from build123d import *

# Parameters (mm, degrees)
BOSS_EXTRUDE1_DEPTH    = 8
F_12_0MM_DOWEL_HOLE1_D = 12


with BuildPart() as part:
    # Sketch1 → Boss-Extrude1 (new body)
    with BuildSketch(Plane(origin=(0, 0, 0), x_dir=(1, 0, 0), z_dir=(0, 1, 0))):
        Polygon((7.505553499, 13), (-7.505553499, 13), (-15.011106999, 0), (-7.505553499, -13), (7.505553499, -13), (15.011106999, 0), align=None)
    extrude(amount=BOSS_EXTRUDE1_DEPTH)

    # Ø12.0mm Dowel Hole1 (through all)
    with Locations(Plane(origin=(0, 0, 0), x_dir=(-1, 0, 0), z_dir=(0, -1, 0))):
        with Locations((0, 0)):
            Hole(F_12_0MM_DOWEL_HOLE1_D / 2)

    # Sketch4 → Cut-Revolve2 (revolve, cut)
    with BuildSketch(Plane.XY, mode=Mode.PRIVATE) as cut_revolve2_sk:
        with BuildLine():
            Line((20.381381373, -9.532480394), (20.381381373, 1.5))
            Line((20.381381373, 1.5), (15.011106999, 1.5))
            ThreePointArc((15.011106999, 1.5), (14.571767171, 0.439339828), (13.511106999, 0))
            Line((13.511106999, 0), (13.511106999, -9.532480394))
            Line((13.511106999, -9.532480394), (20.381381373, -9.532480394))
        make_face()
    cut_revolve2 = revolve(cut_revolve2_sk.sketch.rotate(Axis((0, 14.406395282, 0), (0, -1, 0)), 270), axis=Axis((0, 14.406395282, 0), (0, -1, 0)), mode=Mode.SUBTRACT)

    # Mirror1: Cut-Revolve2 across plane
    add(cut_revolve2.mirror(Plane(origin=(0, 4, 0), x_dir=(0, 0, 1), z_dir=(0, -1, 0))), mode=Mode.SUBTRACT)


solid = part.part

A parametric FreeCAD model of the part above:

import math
import FreeCAD as App
import Part
import Sketcher
Q = App.Units.Quantity


def add_polygon(sketch, points):
    """Adds a closed chain of lines whose ends are joined by coincident constraints."""
    first, n = sketch.GeometryCount, len(points)
    for a, b in zip(points, points[1:] + points[:1]):
        sketch.addGeometry(Part.LineSegment(App.Vector(*a, 0), App.Vector(*b, 0)), False)
    for i in range(n):
        sketch.addConstraint(Sketcher.Constraint("Coincident", first + i, 2, first + (i + 1) % n, 1))

doc = App.newDocument("Part")
params = doc.addObject("Spreadsheet::Sheet", "Params")
for row, (alias, value) in enumerate([
    ("pad1_length", "8 mm"),
    ("sketch2_diameter", "12 mm"),
    ("hole_diameter", "12 mm"),
    ("sketch3_radius", "1.5 mm"),
    ("groove_angle", "360 deg"),
], start=1):
    params.set(f"A{row}", alias)
    params.set(f"B{row}", "=" + value)
    params.setAlias(f"B{row}", alias)

body = doc.addObject("PartDesign::Body", "Body")

# Sketch on XZ plane
sketch1 = body.newObject("Sketcher::SketchObject", "Sketch")
sketch1.AttachmentSupport = (doc.getObject("XZ_Plane"), [""])
sketch1.MapMode = "FlatFace"
add_polygon(sketch1, [(8, -13), (-8, -13), (-15, 0), (-8, 13), (8, 13), (15, 0)])  # lines 0-5
sketch1.addConstraint([
    Sketcher.Constraint("Horizontal", 0),
    Sketcher.Constraint("Horizontal", 3),
    Sketcher.Constraint("Symmetric", 0, 2, 3, 2, -1, 1),
    Sketcher.Constraint("Symmetric", 1, 2, 4, 2, -1, 1),
    Sketcher.Constraint("PointOnObject", 1, 2, -1),
    Sketcher.Constraint("Parallel", 2, 5),
    Sketcher.Constraint("Vertical", 0, 2, 2, 2),
    Sketcher.Constraint("Angle", 1, Q("120 deg")),
    Sketcher.Constraint("DistanceY", 0, 2, -1, 1, Q("13 mm")),
    Sketcher.Constraint("DistanceX", 0, 2, 0, 1, Q("15.011107 mm")),
])
pad1 = body.newObject("PartDesign::Pad", "Pad")
pad1.Profile = sketch1
pad1.setExpression("Length", "Params.pad1_length")
pad1.Reversed = True

# Sketch on XZ plane
sketch2 = body.newObject("Sketcher::SketchObject", "Sketch001")
sketch2.AttachmentSupport = (doc.getObject("XZ_Plane"), [""])
sketch2.MapMode = "FlatFace"
sketch2.addGeometry(Part.Circle(App.Vector(0, 0, 0), App.Vector(0, 0, 1), 6), False)
sketch2.addConstraint([
    Sketcher.Constraint("Coincident", 0, 3, -1, 1),
    Sketcher.Constraint("Diameter", 0, Q("12 mm")),
])
sketch2.setExpression("Constraints[1]", "Params.sketch2_diameter")
doc.recompute()
hole = body.newObject("PartDesign::Hole", "Hole")
hole.Profile = sketch2
hole.ThreadType = "None"
hole.setExpression("Diameter", "Params.hole_diameter")
hole.DepthType = "ThroughAll"

# Sketch on XY plane
sketch3 = body.newObject("Sketcher::SketchObject", "Sketch002")
sketch3.AttachmentSupport = (doc.getObject("XY_Plane"), [""])
sketch3.MapMode = "FlatFace"
sketch3.addGeometry([
    Part.LineSegment(App.Vector(20.4, -9.5, 0), App.Vector(20.4, 1.5, 0)),  # 0
    Part.LineSegment(App.Vector(20.4, 1.5, 0), App.Vector(15, 1.5, 0)),  # 1
    Part.ArcOfCircle(Part.Circle(App.Vector(13.5, 1.5, 0), App.Vector(0, 0, 1), 1.5), math.radians(-90), math.radians(0)),  # 2
    Part.LineSegment(App.Vector(13.5, 0, 0), App.Vector(13.5, -9.5, 0)),  # 3
    Part.LineSegment(App.Vector(13.5, -9.5, 0), App.Vector(20.4, -9.5, 0)),  # 4
], False)
sketch3.addConstraint([
    Sketcher.Constraint("Coincident", 0, 2, 1, 1),
    Sketcher.Constraint("Coincident", 1, 2, 2, 2),
    Sketcher.Constraint("Coincident", 2, 1, 3, 1),
    Sketcher.Constraint("Coincident", 3, 2, 4, 1),
    Sketcher.Constraint("Coincident", 4, 2, 0, 1),
    Sketcher.Constraint("Vertical", 0),
    Sketcher.Constraint("Horizontal", 1),
    Sketcher.Constraint("Vertical", 3),
    Sketcher.Constraint("Horizontal", 4),
    Sketcher.Constraint("PointOnObject", 2, 1, -1),
    Sketcher.Constraint("Horizontal", 2, 3, 0, 2),
    Sketcher.Constraint("Radius", 2, Q("1.5 mm")),
    Sketcher.Constraint("DistanceX", 2, 1, 1, 2, Q("1.5 mm")),
    Sketcher.Constraint("DistanceY", 0, 1, 0, 2, Q("11.03248 mm")),
    Sketcher.Constraint("DistanceX", 1, 2, 1, 1, Q("5.370274 mm")),
    Sketcher.Constraint("DistanceX", -1, 1, 0, 2, Q("20.381381 mm")),
])
sketch3.setExpression("Constraints[11]", "Params.sketch3_radius")
groove = body.newObject("PartDesign::Groove", "Groove")
groove.Profile = sketch3
groove.ReferenceAxis = (sketch3, ["V_Axis"])
groove.setExpression("Angle", "Params.groove_angle")
doc.recompute()

datumplane = body.newObject("PartDesign::Plane", "DatumPlane")
datumplane.AttachmentSupport = (doc.getObject("XZ_Plane"), [""])
datumplane.MapMode = "FlatFace"
datumplane.AttachmentOffset = App.Placement(App.Vector(0, 0, -4), App.Rotation())
mirrored = body.newObject("PartDesign::Mirrored", "Mirrored")
mirrored.Originals = [groove]
mirrored.MirrorPlane = (datumplane, [""])
body.Tip = mirrored

doc.recompute()
